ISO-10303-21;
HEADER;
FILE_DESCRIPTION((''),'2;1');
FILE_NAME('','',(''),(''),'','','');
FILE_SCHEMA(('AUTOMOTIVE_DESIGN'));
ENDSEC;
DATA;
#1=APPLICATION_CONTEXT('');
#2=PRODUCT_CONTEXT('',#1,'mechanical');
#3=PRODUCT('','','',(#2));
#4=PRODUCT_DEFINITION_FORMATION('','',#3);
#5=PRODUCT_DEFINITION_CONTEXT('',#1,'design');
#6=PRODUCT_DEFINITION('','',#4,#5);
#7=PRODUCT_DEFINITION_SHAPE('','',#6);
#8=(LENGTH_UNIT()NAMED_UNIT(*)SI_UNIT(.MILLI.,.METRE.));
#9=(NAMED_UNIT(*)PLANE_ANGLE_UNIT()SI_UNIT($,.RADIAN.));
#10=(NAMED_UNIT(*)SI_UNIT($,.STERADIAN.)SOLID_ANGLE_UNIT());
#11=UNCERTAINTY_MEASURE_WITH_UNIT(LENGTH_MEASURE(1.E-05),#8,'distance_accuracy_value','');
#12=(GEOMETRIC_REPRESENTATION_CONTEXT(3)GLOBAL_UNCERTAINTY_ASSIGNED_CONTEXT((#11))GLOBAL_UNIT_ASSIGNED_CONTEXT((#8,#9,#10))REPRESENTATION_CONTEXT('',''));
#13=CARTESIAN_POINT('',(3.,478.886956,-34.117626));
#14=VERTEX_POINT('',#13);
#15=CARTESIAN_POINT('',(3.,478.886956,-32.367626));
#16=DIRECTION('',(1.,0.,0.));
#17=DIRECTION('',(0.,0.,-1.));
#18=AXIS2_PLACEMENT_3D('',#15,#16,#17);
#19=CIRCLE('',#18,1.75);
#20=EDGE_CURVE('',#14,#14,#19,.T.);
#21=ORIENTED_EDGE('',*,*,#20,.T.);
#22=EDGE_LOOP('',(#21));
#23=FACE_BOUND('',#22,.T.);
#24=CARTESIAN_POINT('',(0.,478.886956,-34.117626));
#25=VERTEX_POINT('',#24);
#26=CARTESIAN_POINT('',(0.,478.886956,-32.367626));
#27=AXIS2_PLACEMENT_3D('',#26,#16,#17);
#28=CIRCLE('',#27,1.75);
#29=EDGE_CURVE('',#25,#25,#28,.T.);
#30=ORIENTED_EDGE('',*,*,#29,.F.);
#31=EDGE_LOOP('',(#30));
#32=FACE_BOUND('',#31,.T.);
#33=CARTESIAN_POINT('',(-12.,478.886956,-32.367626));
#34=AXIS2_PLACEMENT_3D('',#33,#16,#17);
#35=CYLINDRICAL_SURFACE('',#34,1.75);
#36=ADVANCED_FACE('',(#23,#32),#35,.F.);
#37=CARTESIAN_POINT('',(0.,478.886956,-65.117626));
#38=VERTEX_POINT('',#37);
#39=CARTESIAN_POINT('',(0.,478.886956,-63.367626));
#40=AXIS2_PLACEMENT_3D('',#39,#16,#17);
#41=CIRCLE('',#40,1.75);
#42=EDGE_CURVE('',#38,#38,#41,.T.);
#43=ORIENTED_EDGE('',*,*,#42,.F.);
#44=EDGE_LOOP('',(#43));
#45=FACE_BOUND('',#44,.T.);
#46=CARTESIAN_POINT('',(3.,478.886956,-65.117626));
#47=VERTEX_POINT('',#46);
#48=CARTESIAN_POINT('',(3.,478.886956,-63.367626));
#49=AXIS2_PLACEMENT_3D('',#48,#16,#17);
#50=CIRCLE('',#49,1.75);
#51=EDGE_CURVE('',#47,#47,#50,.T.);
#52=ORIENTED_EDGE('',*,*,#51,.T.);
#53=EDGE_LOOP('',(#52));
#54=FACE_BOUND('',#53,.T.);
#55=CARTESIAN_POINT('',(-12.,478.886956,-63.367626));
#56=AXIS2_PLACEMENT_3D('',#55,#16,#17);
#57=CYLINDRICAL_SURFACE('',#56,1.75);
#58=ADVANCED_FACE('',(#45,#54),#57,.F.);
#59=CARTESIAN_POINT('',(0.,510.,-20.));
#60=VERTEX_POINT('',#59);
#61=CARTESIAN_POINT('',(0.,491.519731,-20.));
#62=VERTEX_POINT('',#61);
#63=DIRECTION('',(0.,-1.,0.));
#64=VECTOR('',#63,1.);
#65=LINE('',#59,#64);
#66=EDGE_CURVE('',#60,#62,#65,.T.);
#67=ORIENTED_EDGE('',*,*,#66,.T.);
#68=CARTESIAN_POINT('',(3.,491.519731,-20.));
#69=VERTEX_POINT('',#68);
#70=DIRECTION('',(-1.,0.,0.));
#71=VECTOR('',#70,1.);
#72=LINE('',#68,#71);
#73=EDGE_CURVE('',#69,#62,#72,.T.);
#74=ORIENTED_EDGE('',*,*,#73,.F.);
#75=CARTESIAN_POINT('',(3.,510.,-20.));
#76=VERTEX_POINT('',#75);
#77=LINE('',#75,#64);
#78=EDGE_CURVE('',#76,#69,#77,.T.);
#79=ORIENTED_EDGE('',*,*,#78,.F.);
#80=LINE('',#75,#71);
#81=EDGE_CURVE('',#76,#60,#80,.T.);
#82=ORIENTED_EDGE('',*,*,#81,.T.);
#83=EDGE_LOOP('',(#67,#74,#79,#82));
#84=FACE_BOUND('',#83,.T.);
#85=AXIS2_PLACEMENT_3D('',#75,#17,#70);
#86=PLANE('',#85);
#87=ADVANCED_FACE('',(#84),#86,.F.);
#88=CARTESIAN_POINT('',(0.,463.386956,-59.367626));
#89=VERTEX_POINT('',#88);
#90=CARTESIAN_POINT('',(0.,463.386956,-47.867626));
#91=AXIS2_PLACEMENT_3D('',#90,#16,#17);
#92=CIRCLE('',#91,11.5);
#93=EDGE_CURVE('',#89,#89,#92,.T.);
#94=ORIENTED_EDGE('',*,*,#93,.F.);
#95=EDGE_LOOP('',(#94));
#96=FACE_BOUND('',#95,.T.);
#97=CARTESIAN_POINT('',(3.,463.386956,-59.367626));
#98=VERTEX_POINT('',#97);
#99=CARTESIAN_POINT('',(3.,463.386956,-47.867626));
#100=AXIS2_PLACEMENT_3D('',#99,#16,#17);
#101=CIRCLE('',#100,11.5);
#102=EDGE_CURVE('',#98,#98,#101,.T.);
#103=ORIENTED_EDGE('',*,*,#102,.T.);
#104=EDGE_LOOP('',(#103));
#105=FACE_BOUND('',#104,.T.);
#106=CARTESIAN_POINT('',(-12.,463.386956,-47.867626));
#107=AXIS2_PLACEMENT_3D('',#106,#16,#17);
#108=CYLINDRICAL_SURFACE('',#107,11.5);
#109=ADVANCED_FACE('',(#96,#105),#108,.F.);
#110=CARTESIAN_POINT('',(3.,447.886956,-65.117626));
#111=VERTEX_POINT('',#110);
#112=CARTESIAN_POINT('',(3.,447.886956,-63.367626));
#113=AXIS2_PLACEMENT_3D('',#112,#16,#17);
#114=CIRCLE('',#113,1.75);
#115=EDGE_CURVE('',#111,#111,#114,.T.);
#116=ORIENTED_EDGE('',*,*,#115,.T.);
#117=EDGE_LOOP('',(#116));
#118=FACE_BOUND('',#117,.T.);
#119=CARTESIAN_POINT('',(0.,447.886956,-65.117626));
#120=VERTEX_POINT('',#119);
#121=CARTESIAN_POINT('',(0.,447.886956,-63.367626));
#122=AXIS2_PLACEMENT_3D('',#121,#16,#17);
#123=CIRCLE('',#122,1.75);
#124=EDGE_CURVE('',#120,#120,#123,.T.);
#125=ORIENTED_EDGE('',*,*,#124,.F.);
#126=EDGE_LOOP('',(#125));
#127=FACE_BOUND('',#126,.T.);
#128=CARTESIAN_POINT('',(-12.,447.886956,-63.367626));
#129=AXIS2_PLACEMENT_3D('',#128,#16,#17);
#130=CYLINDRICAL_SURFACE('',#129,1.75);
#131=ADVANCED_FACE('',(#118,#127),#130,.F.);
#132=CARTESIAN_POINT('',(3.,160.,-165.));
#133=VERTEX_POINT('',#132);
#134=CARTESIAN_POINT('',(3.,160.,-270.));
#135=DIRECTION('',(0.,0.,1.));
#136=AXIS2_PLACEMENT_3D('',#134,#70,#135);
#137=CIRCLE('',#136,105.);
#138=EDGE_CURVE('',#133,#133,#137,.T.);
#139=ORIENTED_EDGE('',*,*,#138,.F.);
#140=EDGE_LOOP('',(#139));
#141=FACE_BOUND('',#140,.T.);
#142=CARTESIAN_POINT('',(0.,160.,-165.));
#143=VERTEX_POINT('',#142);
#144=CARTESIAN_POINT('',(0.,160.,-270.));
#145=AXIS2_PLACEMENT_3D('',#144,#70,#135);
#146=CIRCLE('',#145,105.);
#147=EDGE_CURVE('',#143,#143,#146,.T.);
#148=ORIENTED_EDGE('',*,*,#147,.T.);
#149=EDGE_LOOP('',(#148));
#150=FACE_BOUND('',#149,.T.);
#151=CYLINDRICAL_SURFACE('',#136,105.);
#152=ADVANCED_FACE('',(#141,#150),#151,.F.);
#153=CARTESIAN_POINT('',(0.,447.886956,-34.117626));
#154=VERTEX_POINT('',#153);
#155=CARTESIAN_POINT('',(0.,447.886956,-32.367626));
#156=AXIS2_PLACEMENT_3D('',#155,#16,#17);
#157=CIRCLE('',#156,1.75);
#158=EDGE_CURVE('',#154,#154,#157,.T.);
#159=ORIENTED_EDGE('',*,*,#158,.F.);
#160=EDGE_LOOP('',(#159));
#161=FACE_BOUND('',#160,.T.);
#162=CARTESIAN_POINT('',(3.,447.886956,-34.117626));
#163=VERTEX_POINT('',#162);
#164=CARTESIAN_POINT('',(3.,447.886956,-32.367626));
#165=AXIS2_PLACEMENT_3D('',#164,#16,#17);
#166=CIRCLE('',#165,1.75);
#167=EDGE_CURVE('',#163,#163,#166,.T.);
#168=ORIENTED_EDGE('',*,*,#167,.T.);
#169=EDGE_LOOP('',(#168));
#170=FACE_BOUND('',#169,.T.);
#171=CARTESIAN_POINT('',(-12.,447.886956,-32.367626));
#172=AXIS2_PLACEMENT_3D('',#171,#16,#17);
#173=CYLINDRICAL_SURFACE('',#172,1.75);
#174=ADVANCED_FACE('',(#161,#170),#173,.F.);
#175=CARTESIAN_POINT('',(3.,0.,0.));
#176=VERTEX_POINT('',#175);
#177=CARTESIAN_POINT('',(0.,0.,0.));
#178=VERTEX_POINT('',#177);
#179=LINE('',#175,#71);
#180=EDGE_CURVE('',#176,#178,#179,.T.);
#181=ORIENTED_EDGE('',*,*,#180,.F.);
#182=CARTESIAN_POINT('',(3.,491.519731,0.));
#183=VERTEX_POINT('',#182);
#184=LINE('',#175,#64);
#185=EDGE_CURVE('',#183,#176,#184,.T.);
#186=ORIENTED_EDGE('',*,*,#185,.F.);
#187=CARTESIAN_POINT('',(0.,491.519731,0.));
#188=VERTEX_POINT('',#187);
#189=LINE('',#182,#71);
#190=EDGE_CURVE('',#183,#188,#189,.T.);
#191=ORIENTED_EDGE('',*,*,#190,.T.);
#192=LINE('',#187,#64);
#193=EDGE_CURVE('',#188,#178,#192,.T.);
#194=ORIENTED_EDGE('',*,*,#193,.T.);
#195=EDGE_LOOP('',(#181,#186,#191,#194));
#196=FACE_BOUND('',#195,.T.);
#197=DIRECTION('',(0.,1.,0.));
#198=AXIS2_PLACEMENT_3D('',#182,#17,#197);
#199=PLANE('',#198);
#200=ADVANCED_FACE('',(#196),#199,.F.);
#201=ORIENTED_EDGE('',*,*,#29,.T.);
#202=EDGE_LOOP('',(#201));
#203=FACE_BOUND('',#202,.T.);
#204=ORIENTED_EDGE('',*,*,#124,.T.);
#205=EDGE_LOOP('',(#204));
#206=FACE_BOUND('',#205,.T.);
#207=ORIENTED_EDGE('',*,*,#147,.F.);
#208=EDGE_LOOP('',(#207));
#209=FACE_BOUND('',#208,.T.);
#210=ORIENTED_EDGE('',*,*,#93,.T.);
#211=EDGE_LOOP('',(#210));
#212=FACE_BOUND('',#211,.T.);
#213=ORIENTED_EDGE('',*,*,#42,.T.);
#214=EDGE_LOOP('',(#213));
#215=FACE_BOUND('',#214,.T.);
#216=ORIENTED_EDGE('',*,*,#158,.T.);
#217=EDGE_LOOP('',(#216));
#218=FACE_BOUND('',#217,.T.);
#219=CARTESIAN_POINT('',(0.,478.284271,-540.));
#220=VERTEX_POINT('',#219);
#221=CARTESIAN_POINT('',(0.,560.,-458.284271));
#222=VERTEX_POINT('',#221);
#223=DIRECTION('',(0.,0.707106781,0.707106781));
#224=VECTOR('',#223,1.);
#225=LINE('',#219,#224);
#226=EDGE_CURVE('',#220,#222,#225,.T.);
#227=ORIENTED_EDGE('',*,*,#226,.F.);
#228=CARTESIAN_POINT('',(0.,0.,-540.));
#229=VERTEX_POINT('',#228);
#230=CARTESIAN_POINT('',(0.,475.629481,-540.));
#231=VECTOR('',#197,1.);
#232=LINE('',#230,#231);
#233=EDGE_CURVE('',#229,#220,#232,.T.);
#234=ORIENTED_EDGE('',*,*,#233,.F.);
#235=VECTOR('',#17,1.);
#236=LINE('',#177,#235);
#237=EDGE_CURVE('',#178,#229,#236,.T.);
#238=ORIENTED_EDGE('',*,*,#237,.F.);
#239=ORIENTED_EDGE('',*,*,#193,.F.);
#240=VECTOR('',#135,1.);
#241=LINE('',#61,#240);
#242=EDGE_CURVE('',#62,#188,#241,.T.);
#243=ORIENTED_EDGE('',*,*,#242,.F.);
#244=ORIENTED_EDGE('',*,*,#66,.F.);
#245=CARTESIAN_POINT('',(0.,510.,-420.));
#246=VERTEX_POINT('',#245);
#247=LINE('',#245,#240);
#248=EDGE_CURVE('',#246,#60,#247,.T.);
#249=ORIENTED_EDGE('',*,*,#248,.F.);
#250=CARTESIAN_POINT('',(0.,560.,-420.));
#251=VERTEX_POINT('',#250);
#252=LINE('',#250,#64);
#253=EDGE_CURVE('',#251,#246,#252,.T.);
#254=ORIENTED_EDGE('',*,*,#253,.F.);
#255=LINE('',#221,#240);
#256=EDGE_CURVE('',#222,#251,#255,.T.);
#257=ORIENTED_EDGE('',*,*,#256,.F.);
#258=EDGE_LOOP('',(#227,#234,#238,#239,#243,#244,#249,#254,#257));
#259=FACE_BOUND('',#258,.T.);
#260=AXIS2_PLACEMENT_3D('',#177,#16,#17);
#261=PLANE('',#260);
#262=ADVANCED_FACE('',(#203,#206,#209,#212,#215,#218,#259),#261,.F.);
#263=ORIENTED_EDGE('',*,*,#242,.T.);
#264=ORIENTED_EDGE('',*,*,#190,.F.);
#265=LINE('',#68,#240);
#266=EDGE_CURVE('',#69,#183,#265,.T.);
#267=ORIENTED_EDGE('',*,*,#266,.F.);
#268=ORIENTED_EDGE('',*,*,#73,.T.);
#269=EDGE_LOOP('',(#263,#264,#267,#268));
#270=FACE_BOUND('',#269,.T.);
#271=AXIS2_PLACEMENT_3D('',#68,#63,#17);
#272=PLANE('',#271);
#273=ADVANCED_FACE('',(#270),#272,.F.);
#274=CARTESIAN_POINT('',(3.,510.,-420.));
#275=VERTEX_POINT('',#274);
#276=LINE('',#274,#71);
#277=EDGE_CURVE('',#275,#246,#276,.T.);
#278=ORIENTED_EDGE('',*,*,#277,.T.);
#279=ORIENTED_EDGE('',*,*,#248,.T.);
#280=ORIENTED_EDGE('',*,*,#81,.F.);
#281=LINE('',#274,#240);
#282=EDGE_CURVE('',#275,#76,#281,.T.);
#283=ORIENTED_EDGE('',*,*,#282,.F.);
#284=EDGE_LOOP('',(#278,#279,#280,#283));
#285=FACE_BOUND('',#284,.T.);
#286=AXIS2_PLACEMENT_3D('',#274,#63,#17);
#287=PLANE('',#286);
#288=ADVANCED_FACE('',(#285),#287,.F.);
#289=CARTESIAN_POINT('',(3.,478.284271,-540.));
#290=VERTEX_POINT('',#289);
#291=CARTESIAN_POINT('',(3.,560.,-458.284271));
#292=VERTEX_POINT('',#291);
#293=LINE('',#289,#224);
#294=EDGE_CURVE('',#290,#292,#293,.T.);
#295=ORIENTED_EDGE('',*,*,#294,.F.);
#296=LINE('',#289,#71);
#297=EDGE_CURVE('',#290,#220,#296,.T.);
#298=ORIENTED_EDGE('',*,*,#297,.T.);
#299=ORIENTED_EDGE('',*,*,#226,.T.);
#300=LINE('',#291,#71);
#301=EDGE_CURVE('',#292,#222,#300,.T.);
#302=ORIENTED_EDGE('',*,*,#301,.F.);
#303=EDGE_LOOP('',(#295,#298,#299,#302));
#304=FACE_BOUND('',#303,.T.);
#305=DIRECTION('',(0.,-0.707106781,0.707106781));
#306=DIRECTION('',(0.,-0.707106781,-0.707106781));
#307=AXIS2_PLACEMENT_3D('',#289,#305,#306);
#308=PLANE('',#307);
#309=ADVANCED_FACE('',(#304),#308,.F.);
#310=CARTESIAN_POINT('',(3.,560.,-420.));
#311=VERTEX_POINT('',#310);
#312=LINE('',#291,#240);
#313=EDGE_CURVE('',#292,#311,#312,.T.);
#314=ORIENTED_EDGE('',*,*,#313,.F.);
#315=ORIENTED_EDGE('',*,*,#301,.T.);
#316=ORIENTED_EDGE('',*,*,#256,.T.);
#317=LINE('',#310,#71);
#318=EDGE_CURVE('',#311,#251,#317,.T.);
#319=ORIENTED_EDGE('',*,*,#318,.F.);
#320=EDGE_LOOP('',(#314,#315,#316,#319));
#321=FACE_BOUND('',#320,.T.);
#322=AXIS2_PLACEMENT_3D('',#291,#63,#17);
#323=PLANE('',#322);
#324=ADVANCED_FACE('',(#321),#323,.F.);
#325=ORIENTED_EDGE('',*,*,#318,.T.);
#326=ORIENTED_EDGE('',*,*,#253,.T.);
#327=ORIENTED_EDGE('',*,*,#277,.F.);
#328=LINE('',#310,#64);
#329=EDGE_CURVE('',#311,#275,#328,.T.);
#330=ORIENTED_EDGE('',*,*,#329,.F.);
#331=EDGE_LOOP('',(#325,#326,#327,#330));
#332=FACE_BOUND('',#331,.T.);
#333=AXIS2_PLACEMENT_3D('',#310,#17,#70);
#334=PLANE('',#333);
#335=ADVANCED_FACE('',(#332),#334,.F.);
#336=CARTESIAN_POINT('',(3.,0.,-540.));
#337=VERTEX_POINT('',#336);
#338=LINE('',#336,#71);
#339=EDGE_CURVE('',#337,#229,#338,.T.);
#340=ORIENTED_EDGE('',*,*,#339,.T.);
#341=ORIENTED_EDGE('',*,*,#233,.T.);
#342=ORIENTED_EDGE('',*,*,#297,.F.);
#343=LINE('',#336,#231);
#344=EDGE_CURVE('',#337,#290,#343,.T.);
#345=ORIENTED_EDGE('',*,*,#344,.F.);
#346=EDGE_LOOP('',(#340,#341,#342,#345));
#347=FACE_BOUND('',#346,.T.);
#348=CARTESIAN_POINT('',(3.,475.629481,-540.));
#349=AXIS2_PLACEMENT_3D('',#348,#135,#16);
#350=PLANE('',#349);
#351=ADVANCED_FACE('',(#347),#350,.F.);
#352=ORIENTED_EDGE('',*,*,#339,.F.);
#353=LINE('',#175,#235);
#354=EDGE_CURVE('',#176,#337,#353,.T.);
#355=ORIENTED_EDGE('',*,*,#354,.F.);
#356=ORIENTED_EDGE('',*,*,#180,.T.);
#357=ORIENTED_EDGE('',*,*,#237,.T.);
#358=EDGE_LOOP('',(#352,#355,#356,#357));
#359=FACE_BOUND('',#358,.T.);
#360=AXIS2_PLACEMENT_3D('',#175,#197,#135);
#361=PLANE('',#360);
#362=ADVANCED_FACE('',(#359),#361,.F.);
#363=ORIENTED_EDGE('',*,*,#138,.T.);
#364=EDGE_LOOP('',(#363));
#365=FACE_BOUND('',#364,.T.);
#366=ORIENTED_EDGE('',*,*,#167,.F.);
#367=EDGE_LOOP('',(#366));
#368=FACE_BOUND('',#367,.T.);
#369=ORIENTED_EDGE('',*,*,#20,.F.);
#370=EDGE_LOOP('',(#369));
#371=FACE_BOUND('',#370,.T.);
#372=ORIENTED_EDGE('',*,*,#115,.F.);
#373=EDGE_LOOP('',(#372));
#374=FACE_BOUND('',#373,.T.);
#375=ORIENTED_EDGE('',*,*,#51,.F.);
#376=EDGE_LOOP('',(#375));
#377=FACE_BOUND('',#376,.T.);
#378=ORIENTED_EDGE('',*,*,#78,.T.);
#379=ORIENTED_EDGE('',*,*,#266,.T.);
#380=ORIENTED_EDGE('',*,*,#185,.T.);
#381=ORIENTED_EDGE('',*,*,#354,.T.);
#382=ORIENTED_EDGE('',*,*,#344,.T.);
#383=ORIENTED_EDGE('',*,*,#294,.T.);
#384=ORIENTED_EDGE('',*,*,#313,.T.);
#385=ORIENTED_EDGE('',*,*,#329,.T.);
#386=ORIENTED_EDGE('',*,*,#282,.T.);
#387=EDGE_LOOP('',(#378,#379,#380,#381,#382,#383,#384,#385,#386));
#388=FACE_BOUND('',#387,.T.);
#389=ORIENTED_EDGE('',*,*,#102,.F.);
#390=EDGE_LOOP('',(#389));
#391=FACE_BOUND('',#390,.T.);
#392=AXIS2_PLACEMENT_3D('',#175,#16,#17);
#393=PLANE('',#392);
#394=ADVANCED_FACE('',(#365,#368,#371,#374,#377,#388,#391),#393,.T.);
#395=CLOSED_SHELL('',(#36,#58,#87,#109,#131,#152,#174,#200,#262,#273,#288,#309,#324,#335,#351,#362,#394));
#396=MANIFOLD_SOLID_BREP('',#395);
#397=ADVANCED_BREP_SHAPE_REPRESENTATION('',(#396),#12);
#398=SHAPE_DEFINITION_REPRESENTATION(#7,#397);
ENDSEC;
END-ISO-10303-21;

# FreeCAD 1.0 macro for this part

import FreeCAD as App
import Part
import Sketcher

V = App.Vector
Q = App.Units.Quantity


def add_polygon(sketch, points):
    """Adds a closed chain of lines whose ends are joined by coincident constraints."""
    first, n = sketch.GeometryCount, len(points)
    for a, b in zip(points, points[1:] + points[:1]):
        sketch.addGeometry(Part.LineSegment(App.Vector(*a, 0), App.Vector(*b, 0)), False)
    for i in range(n):
        sketch.addConstraint(Sketcher.Constraint("Coincident", first + i, 2, first + (i + 1) % n, 1))

doc = App.newDocument("Part")
body = doc.addObject("PartDesign::Body", "Body")

# Sketch on YZ plane
sketch1 = body.newObject("Sketcher::SketchObject", "Sketch")
sketch1.AttachmentSupport = (doc.getObject("YZ_Plane"), [""])
sketch1.MapMode = "FlatFace"
add_polygon(sketch1, [(478, -540), (560, -458), (560, -420), (510, -420), (510, -20), (492, -20), (492, 0), (0, 0), (0, -540)])  # lines 0-8
sketch1.addConstraint([
    Sketcher.Constraint("Vertical", 1),
    Sketcher.Constraint("Horizontal", 2),
    Sketcher.Constraint("Vertical", 3),
    Sketcher.Constraint("Horizontal", 4),
    Sketcher.Constraint("Vertical", 5),
    Sketcher.Constraint("Horizontal", 6),
    Sketcher.Constraint("Vertical", 7),
    Sketcher.Constraint("Horizontal", 8),
    Sketcher.Constraint("Coincident", 6, 2, -1, 1),
    Sketcher.Constraint("DistanceX", 2, 2, 2, 1, Q("50 mm")),
    Sketcher.Constraint("DistanceY", 3, 1, 3, 2, Q("400 mm")),
    Sketcher.Constraint("DistanceY", 5, 1, 5, 2, Q("20 mm")),
    Sketcher.Constraint("DistanceY", 7, 2, 7, 1, Q("540 mm")),
    Sketcher.Constraint("Angle", 0, Q("45 deg")),
    Sketcher.Constraint("DistanceX", -1, 1, 0, 2, Q("560 mm")),
    Sketcher.Constraint("DistanceX", 4, 2, 4, 1, Q("18.480269 mm")),
    Sketcher.Constraint("DistanceX", 8, 1, 8, 2, Q("478.284271 mm")),
])
pad1 = body.newObject("PartDesign::Pad", "Pad")
pad1.Profile = sketch1
pad1.Length = 3

# Sketch on YZ plane
sketch2 = body.newObject("Sketcher::SketchObject", "Sketch001")
sketch2.AttachmentSupport = (doc.getObject("YZ_Plane"), [""])
sketch2.MapMode = "FlatFace"
sketch2.addGeometry(Part.Circle(V(160, -270, 0), V(0, 0, 1), 105), False)
sketch2.addConstraint([
    Sketcher.Constraint("Diameter", 0, Q("210 mm")),
    Sketcher.Constraint("DistanceX", -1, 1, 0, 3, Q("160 mm")),
    Sketcher.Constraint("DistanceY", 0, 3, -1, 1, Q("270 mm")),
])
pocket1 = body.newObject("PartDesign::Pocket", "Pocket")
pocket1.Profile = sketch2
pocket1.Length = 3
pocket1.Reversed = True

# Sketch on YZ plane
sketch3 = body.newObject("Sketcher::SketchObject", "Sketch002")
sketch3.AttachmentSupport = (doc.getObject("YZ_Plane"), [""])
sketch3.MapMode = "FlatFace"
sketch3.AttachmentOffset = App.Placement(V(0, 0, 3), App.Rotation())
sketch3.addGeometry([
    Part.Circle(V(478.9, -32.4, 0), V(0, 0, 1), 1.8),  # 0
    Part.Circle(V(447.9, -32.4, 0), V(0, 0, 1), 1.8),  # 1
    Part.Circle(V(447.9, -63.4, 0), V(0, 0, 1), 1.8),  # 2
    Part.Circle(V(478.9, -63.4, 0), V(0, 0, 1), 1.8),  # 3
    Part.Circle(V(463.4, -47.9, 0), V(0, 0, 1), 11.5),  # 4
], False)
sketch3.addConstraint([
    Sketcher.Constraint("Equal", 0, 1),
    Sketcher.Constraint("Equal", 1, 2),
    Sketcher.Constraint("Equal", 2, 3),
    Sketcher.Constraint("Horizontal", 0, 3, 1, 3),
    Sketcher.Constraint("Horizontal", 2, 3, 3, 3),
    Sketcher.Constraint("Vertical", 1, 3, 2, 3),
    Sketcher.Constraint("Vertical", 0, 3, 3, 3),
    Sketcher.Constraint("Diameter", 4, Q("23 mm")),
    Sketcher.Constraint("Diameter", 0, Q("3.5 mm")),
    Sketcher.Constraint("DistanceX", 1, 3, 0, 3, Q("31 mm")),
    Sketcher.Constraint("DistanceY", 2, 3, 1, 3, Q("31 mm")),
    Sketcher.Constraint("DistanceX", 4, 3, 0, 3, Q("15.5 mm")),
    Sketcher.Constraint("DistanceY", 4, 3, 0, 3, Q("15.5 mm")),
    Sketcher.Constraint("DistanceX", -1, 1, 0, 3, Q("478.886956 mm")),
    Sketcher.Constraint("DistanceY", 0, 3, -1, 1, Q("32.367626 mm")),
])
pocket2 = body.newObject("PartDesign::Pocket", "Pocket001")
pocket2.Profile = sketch3
pocket2.Length = 15

doc.recompute()
